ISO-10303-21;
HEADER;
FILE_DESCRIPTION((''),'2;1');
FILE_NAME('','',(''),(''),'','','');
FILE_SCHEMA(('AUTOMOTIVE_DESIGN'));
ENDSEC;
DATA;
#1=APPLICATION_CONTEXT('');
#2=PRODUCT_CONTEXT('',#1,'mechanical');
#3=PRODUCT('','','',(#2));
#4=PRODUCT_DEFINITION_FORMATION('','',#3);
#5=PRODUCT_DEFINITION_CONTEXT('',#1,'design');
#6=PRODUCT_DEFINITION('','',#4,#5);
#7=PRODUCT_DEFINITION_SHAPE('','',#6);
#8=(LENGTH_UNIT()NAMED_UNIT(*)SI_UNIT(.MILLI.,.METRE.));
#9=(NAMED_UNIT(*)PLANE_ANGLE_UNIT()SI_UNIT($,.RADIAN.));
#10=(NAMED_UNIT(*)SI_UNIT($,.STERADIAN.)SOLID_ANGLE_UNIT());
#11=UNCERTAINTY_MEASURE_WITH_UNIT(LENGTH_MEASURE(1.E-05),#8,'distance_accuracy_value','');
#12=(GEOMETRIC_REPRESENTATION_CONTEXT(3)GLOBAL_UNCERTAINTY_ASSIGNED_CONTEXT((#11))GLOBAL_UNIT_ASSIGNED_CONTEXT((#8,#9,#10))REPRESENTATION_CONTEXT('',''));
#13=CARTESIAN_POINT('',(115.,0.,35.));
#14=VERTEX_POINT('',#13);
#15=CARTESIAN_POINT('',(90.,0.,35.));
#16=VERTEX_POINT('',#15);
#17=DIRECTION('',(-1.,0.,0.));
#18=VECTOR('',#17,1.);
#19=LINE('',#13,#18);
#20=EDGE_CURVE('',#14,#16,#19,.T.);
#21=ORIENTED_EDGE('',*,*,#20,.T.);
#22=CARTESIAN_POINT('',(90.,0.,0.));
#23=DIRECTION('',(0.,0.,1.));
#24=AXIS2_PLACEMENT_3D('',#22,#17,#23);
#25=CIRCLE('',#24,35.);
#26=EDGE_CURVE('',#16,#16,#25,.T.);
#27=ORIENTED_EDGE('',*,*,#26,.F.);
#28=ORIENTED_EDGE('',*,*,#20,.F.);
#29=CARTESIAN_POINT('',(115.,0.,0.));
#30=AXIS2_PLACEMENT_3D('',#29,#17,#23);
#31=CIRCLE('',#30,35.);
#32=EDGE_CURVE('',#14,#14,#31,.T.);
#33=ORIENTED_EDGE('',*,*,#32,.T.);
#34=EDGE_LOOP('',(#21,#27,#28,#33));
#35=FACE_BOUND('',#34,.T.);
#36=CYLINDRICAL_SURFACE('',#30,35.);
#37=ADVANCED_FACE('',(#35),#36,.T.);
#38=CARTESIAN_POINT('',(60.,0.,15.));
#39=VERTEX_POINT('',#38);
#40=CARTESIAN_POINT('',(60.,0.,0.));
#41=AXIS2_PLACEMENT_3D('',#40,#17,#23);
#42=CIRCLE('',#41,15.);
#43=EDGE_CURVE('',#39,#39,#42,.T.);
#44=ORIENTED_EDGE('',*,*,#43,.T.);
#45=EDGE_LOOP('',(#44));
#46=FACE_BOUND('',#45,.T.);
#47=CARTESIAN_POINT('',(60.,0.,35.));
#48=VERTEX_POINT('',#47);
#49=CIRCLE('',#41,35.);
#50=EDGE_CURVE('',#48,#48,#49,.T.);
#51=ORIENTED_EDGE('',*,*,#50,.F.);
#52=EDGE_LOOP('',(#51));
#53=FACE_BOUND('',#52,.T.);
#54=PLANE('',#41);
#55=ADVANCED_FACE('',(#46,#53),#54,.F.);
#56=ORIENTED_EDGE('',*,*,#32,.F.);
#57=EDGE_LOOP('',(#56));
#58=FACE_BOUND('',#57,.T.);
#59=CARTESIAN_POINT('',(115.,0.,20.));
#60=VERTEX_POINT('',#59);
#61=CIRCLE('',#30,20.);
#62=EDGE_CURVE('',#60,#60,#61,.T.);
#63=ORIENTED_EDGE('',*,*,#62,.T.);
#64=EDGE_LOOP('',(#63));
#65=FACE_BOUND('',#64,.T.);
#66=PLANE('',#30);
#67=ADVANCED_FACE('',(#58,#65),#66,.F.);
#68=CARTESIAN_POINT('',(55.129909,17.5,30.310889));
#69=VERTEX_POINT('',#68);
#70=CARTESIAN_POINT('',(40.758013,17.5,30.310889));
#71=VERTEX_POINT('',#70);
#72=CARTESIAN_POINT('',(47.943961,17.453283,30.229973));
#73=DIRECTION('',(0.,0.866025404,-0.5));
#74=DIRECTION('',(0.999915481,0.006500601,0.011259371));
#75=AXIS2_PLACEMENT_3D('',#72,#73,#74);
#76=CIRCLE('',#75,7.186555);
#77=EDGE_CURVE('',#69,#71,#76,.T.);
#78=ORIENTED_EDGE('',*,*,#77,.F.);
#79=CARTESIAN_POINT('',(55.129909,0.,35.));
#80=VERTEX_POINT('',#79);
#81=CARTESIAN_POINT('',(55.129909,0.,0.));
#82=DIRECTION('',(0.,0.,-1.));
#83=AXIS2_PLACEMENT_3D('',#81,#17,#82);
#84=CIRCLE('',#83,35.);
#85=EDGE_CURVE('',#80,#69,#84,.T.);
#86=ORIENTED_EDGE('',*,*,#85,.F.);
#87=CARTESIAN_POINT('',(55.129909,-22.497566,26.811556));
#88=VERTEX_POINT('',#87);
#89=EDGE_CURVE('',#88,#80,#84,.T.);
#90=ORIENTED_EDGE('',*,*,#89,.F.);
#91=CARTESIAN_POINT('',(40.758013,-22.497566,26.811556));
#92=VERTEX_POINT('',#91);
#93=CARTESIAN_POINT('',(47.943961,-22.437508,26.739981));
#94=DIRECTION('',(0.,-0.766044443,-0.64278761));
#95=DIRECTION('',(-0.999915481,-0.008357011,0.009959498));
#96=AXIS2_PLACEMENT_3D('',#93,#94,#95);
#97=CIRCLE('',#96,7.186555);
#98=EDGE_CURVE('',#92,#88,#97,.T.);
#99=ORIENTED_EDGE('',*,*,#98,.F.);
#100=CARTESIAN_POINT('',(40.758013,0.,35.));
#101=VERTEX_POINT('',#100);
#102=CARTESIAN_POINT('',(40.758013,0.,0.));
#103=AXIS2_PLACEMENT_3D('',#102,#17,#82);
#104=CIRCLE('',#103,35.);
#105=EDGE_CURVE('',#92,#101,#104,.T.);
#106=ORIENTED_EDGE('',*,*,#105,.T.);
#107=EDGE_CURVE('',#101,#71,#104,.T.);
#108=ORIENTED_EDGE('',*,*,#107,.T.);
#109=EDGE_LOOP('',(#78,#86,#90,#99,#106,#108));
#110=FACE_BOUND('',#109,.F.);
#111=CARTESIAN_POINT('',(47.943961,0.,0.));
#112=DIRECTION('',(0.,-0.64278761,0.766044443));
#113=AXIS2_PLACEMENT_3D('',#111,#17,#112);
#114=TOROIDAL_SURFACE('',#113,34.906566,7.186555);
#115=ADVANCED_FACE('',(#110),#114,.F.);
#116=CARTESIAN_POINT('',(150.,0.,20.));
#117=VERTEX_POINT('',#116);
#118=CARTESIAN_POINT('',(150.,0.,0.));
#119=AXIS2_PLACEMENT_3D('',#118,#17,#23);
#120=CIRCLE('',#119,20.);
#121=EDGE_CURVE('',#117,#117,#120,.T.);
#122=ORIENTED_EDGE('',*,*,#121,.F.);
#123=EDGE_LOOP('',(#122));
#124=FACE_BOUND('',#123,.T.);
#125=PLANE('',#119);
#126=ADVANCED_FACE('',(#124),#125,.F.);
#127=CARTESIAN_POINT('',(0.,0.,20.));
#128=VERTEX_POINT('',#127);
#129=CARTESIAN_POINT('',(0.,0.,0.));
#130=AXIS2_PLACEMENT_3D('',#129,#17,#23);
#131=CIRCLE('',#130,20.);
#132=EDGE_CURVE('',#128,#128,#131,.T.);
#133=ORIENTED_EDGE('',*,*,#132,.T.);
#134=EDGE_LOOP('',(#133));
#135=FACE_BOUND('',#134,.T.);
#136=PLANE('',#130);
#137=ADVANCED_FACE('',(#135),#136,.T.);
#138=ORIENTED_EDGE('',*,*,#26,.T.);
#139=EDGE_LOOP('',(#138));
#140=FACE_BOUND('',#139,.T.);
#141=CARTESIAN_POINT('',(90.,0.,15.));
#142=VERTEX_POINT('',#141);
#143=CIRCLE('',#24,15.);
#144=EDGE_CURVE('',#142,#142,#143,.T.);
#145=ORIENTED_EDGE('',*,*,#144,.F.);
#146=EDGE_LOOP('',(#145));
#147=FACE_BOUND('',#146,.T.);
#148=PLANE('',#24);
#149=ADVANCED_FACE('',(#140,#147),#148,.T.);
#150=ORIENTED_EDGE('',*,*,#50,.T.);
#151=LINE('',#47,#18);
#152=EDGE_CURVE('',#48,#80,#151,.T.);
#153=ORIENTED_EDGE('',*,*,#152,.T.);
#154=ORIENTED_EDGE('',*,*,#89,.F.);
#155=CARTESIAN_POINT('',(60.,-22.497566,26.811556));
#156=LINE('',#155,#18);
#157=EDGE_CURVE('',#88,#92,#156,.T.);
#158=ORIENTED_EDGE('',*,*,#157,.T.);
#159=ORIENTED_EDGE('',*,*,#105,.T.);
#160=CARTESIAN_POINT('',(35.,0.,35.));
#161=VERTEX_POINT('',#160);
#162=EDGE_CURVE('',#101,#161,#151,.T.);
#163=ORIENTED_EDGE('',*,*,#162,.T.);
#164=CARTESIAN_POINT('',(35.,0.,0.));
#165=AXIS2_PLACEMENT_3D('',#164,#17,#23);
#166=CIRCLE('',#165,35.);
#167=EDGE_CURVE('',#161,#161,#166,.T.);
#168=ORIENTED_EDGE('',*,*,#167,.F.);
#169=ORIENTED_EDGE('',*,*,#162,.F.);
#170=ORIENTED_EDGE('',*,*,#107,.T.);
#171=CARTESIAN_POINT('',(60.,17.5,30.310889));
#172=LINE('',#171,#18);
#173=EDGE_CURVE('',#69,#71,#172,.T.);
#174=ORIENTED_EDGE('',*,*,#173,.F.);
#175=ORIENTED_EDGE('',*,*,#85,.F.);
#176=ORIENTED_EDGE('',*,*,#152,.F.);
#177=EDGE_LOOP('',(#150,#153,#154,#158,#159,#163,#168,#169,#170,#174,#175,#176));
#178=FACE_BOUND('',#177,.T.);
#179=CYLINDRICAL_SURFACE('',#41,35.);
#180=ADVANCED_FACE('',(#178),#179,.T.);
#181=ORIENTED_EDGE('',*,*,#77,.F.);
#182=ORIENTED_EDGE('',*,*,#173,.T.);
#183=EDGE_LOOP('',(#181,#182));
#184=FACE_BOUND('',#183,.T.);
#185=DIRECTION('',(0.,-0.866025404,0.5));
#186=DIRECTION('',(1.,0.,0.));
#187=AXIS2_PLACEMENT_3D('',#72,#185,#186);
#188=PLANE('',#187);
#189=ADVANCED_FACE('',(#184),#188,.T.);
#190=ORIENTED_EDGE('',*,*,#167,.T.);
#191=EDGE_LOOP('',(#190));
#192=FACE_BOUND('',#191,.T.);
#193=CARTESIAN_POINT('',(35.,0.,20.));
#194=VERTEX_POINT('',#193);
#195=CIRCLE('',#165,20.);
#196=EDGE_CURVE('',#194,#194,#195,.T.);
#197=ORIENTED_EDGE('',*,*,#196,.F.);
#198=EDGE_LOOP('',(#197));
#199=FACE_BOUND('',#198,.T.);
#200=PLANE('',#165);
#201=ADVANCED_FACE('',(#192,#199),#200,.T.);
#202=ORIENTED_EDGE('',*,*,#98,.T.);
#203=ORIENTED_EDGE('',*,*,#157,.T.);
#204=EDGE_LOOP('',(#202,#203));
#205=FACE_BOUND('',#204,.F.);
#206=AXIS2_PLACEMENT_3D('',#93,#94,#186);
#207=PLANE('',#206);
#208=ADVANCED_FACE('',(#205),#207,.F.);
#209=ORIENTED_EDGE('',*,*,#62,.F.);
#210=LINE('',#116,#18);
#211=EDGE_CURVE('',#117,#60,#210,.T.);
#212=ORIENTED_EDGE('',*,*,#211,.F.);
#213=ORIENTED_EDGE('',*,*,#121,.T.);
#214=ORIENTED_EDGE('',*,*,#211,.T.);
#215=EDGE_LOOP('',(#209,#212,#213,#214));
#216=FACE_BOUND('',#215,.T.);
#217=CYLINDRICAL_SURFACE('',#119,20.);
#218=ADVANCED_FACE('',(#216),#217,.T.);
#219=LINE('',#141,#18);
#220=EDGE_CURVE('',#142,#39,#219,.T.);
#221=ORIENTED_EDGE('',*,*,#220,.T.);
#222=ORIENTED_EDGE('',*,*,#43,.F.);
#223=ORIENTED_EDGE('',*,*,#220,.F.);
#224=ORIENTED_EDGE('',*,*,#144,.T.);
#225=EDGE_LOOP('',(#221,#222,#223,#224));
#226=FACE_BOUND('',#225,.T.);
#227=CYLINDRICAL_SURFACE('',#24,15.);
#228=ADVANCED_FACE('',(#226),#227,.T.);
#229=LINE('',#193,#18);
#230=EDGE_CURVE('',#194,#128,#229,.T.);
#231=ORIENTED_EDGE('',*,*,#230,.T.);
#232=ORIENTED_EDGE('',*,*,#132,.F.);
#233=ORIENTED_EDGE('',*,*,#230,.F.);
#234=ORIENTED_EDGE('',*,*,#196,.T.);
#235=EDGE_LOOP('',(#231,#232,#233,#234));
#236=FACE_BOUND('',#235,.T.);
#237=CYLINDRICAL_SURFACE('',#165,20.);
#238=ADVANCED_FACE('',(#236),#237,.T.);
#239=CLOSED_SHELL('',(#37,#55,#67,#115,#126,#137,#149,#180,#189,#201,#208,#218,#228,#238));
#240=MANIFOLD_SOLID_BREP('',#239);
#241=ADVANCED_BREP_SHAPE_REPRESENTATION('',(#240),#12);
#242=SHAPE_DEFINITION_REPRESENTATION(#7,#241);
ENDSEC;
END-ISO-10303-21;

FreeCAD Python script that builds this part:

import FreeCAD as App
import Part
import Sketcher
Q = App.Units.Quantity


def add_polygon(sketch, points):
    """Adds a closed chain of lines whose ends are joined by coincident constraints."""
    first, n = sketch.GeometryCount, len(points)
    for a, b in zip(points, points[1:] + points[:1]):
        sketch.addGeometry(Part.LineSegment(App.Vector(*a, 0), App.Vector(*b, 0)), False)
    for i in range(n):
        sketch.addConstraint(Sketcher.Constraint("Coincident", first + i, 2, first + (i + 1) % n, 1))

doc = App.newDocument("Part")
body = doc.addObject("PartDesign::Body", "Body")

sketch1 = doc.addObject("Sketcher::SketchObject", "Sketch")
body.addObject(sketch1)
sketch1.AttachmentSupport = (doc.XZ_Plane, [""])
sketch1.MapMode = "FlatFace"
add_polygon(sketch1, [(0, 20), (0, 0), (150, 0), (150, 20), (115, 20), (115, 35), (90, 35), (90, 15), (60, 15), (60, 35), (35, 35), (35, 20)])
sketch1.addConstraint([
    Sketcher.Constraint("Vertical", 0),
    Sketcher.Constraint("Horizontal", 1),
    Sketcher.Constraint("Vertical", 2),
    Sketcher.Constraint("Horizontal", 3),
    Sketcher.Constraint("Vertical", 4),
    Sketcher.Constraint("Horizontal", 5),
    Sketcher.Constraint("Vertical", 6),
    Sketcher.Constraint("Horizontal", 7),
    Sketcher.Constraint("Vertical", 8),
    Sketcher.Constraint("Horizontal", 9),
    Sketcher.Constraint("Vertical", 10),
    Sketcher.Constraint("Horizontal", 11),
    Sketcher.Constraint("Coincident", 0, 2, -1, 1),
    Sketcher.Constraint("Horizontal", 5, 2, 8, 2),
    Sketcher.Constraint("Horizontal", 3, 2, 10, 2),
    Sketcher.Constraint("Equal", 5, 9),
    Sketcher.Constraint("Equal", 3, 11),
    Sketcher.Constraint("Equal", 2, 6),
    Sketcher.Constraint("DistanceX", 1, 1, 1, 2, Q("150 mm")),
    Sketcher.Constraint("DistanceX", 3, 2, 3, 1, Q("35 mm")),
    Sketcher.Constraint("DistanceX", 5, 2, 5, 1, Q("25 mm")),
    Sketcher.Constraint("DistanceY", 0, 2, 0, 1, Q("20 mm")),
    Sketcher.Constraint("DistanceY", 4, 1, 4, 2, Q("15 mm")),
])
revolution = doc.addObject("PartDesign::Revolution", "Revolution")
body.addObject(revolution)
revolution.Profile = sketch1
revolution.ReferenceAxis = (sketch1, ["H_Axis"])
revolution.Angle = 360

sketch2 = doc.addObject("Sketcher::SketchObject", "Sketch001")
body.addObject(sketch2)
sketch2.Placement = App.Placement(App.Vector(0, 0, 0), App.Rotation(App.Vector(1, 0, 0), App.Vector(0, -0.64278761, 0.766044443), App.Vector(0, -0.766044443, -0.64278761), "ZXY"))
sketch2.addGeometry(Part.Circle(App.Vector(47.943961, 34.906566, 0), App.Vector(0, 0, 1), 7.186555), False)
sketch2.addConstraint([
    Sketcher.Constraint("Diameter", 0, Q("14.373111 mm")),
    Sketcher.Constraint("DistanceX", -1, 1, 0, 3, Q("47.943961 mm")),
    Sketcher.Constraint("DistanceY", -1, 1, 0, 3, Q("34.906566 mm")),
])
groove = doc.addObject("PartDesign::Groove", "Groove")
body.addObject(groove)
groove.Profile = sketch2
groove.ReferenceAxis = (sketch2, ["H_Axis"])
groove.Angle = 70
groove.Reversed = True

doc.recompute()
